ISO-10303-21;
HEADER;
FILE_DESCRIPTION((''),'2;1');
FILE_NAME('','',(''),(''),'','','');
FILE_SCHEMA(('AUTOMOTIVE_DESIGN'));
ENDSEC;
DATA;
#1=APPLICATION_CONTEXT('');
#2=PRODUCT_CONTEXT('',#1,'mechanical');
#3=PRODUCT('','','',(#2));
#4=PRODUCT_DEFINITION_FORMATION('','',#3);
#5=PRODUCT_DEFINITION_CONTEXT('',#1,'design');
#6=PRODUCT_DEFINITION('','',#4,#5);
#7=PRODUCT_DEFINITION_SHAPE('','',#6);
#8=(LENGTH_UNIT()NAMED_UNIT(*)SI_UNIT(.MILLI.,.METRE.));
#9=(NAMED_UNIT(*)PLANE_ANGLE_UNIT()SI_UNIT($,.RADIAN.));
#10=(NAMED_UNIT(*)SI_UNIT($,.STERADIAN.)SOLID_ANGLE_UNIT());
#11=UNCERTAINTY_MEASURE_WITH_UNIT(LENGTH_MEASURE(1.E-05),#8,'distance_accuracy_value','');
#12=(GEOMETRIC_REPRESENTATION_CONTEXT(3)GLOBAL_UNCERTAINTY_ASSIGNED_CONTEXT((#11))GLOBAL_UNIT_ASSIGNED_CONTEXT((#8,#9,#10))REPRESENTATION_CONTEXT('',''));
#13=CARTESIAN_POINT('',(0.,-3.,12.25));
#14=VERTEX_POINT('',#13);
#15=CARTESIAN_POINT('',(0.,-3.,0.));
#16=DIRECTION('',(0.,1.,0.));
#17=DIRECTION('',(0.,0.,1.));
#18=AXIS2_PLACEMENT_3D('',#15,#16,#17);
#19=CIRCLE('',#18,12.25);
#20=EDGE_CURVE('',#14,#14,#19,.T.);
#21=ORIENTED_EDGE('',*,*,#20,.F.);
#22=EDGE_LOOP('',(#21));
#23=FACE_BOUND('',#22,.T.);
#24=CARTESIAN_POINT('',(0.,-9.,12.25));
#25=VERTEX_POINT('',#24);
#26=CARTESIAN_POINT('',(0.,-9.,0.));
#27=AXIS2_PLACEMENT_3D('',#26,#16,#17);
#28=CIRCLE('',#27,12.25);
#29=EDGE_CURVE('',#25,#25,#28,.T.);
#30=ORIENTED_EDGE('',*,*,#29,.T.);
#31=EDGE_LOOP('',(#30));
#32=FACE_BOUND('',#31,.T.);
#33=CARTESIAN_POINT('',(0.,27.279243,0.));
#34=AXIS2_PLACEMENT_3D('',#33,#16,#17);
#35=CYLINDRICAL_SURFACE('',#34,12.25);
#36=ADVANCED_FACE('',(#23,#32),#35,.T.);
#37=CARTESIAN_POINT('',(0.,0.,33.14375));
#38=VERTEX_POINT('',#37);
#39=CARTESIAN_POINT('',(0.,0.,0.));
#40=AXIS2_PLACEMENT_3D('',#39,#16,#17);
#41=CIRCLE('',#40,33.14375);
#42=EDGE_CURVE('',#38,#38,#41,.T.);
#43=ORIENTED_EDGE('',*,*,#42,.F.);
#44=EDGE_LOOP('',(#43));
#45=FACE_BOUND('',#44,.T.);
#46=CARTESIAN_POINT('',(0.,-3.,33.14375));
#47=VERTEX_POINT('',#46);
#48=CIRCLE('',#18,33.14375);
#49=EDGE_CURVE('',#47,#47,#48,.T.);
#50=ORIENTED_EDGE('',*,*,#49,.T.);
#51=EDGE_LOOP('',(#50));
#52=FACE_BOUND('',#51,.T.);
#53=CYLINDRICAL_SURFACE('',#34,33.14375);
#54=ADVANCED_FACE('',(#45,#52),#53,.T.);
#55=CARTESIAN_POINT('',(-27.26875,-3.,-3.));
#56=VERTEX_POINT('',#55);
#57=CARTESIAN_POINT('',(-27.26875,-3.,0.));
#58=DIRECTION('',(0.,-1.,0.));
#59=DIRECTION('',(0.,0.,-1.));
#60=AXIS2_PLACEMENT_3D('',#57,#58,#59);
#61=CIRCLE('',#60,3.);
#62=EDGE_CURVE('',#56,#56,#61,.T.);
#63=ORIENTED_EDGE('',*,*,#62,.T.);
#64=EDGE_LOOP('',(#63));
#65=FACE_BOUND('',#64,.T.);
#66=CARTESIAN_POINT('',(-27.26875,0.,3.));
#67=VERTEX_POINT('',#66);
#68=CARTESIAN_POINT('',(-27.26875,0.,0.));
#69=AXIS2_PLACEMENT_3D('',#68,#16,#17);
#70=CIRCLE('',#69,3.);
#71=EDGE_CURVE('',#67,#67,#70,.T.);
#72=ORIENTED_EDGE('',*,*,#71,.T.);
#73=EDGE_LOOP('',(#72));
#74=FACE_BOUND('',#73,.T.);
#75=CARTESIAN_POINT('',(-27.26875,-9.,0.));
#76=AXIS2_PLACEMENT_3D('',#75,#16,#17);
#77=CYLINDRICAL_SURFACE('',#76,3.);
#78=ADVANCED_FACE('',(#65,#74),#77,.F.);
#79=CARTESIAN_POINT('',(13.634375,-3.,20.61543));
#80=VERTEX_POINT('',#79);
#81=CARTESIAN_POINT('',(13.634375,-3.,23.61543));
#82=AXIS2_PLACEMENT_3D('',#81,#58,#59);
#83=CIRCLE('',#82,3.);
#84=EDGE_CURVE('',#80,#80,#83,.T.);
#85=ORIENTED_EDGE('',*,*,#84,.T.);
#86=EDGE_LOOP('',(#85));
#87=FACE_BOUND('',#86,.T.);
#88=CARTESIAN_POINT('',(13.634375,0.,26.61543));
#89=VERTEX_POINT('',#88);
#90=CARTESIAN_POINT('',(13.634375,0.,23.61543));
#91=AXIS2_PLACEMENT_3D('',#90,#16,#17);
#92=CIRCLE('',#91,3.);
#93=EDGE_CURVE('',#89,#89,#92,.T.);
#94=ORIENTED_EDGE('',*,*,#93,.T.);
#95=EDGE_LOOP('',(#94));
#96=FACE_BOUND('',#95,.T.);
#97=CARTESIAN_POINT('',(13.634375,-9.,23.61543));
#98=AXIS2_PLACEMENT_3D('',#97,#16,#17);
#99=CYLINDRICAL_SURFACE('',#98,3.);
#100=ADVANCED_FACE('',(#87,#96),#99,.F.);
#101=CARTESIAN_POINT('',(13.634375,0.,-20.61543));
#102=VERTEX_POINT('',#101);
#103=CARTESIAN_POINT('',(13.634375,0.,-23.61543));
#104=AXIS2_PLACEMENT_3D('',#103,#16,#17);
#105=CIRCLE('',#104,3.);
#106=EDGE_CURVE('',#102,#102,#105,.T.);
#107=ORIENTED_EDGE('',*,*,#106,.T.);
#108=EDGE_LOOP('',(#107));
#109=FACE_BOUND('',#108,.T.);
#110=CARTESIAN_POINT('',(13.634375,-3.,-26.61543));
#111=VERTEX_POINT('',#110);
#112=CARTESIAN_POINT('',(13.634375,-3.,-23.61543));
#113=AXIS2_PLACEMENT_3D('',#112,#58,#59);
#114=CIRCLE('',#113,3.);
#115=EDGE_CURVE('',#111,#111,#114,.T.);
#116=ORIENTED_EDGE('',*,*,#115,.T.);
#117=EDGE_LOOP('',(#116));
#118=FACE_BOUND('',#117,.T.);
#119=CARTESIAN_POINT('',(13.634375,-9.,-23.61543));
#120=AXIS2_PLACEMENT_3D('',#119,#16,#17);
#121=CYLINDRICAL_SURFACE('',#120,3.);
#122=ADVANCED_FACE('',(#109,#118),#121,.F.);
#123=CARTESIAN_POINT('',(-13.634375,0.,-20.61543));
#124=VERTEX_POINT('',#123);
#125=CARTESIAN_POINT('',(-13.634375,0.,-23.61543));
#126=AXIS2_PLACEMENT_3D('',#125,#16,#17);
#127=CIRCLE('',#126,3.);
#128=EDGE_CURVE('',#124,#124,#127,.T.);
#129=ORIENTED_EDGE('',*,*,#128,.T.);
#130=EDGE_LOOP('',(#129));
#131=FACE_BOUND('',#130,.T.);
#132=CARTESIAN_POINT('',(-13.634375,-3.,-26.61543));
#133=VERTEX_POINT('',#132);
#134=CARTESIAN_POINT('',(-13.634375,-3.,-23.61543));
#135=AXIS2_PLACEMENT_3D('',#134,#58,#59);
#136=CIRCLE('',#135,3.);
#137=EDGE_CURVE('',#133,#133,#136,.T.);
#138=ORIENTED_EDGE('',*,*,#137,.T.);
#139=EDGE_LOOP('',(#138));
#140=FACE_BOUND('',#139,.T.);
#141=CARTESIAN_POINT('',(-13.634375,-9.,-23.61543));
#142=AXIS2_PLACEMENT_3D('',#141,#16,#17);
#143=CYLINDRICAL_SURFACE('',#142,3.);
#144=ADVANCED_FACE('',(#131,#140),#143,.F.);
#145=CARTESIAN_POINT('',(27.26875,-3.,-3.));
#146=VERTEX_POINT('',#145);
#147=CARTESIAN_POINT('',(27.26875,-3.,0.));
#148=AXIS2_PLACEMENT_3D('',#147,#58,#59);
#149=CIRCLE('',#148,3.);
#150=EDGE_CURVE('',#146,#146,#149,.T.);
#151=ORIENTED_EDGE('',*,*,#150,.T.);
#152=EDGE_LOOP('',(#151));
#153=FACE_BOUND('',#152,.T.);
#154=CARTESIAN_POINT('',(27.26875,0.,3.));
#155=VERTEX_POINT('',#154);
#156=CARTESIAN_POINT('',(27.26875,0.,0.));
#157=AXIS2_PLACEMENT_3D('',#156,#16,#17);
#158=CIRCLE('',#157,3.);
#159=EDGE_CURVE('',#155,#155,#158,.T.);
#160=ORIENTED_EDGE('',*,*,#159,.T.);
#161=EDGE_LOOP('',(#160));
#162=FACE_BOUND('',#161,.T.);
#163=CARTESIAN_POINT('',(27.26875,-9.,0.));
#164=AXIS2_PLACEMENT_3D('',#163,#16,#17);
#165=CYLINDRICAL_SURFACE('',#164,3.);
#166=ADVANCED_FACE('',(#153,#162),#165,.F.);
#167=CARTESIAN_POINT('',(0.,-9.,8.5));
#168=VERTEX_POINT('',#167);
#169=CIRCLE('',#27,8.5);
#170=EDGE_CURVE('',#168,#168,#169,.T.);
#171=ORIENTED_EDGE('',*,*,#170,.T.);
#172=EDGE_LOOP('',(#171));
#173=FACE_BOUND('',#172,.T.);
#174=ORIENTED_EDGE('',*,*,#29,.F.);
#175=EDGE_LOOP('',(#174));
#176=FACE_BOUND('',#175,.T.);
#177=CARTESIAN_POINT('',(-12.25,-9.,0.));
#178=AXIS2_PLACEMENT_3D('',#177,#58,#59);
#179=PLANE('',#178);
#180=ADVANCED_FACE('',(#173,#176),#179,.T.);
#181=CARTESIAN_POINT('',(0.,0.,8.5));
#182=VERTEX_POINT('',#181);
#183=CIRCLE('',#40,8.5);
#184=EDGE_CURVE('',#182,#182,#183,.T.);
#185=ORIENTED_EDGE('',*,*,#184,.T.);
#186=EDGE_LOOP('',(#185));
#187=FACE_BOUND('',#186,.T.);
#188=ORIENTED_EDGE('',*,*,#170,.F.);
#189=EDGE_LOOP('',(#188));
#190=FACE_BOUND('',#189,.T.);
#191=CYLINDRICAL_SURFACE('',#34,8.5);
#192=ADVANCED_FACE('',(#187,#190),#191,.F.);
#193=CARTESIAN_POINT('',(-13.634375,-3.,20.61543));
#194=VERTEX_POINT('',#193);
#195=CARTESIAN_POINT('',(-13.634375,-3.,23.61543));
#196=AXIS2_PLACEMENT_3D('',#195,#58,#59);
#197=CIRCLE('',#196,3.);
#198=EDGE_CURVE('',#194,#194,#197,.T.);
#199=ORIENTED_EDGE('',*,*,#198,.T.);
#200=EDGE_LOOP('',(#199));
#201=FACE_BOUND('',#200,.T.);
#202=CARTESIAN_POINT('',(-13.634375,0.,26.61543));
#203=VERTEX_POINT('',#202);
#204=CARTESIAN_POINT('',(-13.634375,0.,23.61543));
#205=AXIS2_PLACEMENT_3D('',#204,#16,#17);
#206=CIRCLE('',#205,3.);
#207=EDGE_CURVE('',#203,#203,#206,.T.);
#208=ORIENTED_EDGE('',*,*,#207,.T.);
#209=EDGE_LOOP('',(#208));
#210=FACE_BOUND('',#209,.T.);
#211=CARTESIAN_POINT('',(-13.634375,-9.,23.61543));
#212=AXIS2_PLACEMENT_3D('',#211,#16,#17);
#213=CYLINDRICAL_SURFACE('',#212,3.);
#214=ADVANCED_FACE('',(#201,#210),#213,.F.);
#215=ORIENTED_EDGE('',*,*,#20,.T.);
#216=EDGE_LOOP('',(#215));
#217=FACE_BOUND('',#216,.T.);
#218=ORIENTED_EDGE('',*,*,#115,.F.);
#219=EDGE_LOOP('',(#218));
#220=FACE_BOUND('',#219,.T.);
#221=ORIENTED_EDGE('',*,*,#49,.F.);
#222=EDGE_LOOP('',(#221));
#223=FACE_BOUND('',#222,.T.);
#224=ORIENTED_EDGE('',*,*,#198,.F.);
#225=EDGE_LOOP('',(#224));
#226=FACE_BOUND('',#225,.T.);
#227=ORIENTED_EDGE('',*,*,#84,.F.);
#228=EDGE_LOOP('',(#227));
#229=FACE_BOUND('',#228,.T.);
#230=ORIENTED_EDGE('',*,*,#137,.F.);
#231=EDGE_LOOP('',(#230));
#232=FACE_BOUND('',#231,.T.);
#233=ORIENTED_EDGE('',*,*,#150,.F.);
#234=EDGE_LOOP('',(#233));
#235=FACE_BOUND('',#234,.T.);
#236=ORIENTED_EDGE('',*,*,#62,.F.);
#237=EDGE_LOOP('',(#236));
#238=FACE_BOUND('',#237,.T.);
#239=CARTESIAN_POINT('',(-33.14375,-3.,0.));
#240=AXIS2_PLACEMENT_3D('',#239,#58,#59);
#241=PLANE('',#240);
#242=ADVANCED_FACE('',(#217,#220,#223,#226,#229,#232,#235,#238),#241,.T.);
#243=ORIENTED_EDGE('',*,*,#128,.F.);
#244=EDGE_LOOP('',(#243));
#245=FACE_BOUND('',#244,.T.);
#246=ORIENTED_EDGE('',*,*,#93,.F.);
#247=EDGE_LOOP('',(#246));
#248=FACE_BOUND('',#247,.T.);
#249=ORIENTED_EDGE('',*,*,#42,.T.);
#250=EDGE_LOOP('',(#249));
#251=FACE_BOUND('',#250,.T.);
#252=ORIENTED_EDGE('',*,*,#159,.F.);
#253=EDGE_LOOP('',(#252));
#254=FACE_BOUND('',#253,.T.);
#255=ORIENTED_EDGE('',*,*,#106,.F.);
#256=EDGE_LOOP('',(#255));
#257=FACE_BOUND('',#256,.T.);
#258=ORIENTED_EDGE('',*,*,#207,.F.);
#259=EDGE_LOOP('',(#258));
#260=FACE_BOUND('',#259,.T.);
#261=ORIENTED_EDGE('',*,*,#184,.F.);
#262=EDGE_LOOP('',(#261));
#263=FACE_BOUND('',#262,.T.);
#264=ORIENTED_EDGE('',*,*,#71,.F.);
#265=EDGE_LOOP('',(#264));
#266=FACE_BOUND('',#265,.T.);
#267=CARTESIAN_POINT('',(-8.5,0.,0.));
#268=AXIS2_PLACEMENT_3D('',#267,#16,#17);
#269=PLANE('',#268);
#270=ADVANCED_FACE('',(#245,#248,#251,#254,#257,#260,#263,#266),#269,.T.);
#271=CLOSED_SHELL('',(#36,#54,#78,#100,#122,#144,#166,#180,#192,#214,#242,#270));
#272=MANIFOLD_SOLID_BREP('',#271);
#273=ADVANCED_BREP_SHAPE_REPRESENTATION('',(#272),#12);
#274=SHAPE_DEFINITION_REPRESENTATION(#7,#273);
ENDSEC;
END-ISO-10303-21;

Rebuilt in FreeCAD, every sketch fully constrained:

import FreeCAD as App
import Part
import Sketcher

V = App.Vector


def add_polygon(sketch, points):
    """Adds a closed chain of lines whose ends are joined by coincident constraints."""
    first, n = sketch.GeometryCount, len(points)
    for a, b in zip(points, points[1:] + points[:1]):
        sketch.addGeometry(Part.LineSegment(App.Vector(*a, 0), App.Vector(*b, 0)), False)
    for i in range(n):
        sketch.addConstraint(Sketcher.Constraint("Coincident", first + i, 2, first + (i + 1) % n, 1))

doc = App.newDocument("Part")
body = doc.addObject("PartDesign::Body", "Body")

# Sketch on XY plane
sketch1 = body.newObject("Sketcher::SketchObject", "Sketch")
sketch1.AttachmentSupport = (doc.getObject("XY_Plane"), [""])
sketch1.MapMode = "FlatFace"
add_polygon(sketch1, [(-8.5, 0), (-33.14375, 0), (-33.14375, -3), (-12.25, -3), (-12.25, -9), (-8.5, -9)])  # lines 0-5
sketch1.addConstraint(Sketcher.Constraint("Horizontal", 0))
sketch1.addConstraint(Sketcher.Constraint("Vertical", 1))
sketch1.addConstraint(Sketcher.Constraint("Horizontal", 2))
sketch1.addConstraint(Sketcher.Constraint("Vertical", 3))
sketch1.addConstraint(Sketcher.Constraint("Horizontal", 4))
sketch1.addConstraint(Sketcher.Constraint("Vertical", 5))
sketch1.addConstraint(Sketcher.Constraint("PointOnObject", 0, 2, -1))
sketch1.addConstraint(Sketcher.Constraint("DistanceY", 1, 2, 1, 1, 3.0))
sketch1.addConstraint(Sketcher.Constraint("DistanceY", 3, 2, 3, 1, 6.0))
sketch1.addConstraint(Sketcher.Constraint("DistanceX", 4, 1, 4, 2, 3.75))
sketch1.addConstraint(Sketcher.Constraint("DistanceX", 4, 2, -1, 1, 8.5))
sketch1.addConstraint(Sketcher.Constraint("DistanceX", 0, 2, 0, 1, 24.64375))
revolution = body.newObject("PartDesign::Revolution", "Revolution")
revolution.Profile = sketch1
revolution.ReferenceAxis = (sketch1, ["V_Axis"])
revolution.Angle = 360

# Sketch on XZ plane
sketch2 = body.newObject("Sketcher::SketchObject", "Sketch001")
sketch2.AttachmentSupport = (doc.getObject("XZ_Plane"), [""])
sketch2.MapMode = "FlatFace"
sketch2.addGeometry(Part.Circle(V(-27.26875, 0, 0), V(0, 0, 1), 3), False)
sketch2.addGeometry(Part.Circle(V(-13.634375, -23.61543, 0), V(0, 0, 1), 3), False)
sketch2.addGeometry(Part.Circle(V(13.634375, -23.61543, 0), V(0, 0, 1), 3), False)
sketch2.addGeometry(Part.Circle(V(27.26875, 0, 0), V(0, 0, 1), 3), False)
sketch2.addGeometry(Part.Circle(V(13.634375, 23.61543, 0), V(0, 0, 1), 3), False)
sketch2.addGeometry(Part.Circle(V(-13.634375, 23.61543, 0), V(0, 0, 1), 3), False)
sketch2.addConstraint(Sketcher.Constraint("Equal", 0, 1))
sketch2.addConstraint(Sketcher.Constraint("Equal", 1, 2))
sketch2.addConstraint(Sketcher.Constraint("Equal", 2, 3))
sketch2.addConstraint(Sketcher.Constraint("Equal", 3, 4))
sketch2.addConstraint(Sketcher.Constraint("Equal", 4, 5))
sketch2.addConstraint(Sketcher.Constraint("Symmetric", 0, 3, 3, 3, -1, 1))
sketch2.addConstraint(Sketcher.Constraint("Symmetric", 1, 3, 4, 3, -1, 1))
sketch2.addConstraint(Sketcher.Constraint("Symmetric", 2, 3, 5, 3, -1, 1))
sketch2.addConstraint(Sketcher.Constraint("Symmetric", 1, 3, 2, 3, -2))
sketch2.addConstraint(Sketcher.Constraint("PointOnObject", 0, 3, -1))
sketch2.addConstraint(Sketcher.Constraint("Diameter", 0, 6.0))
sketch2.addConstraint(Sketcher.Constraint("DistanceX", 0, 3, 3, 3, 54.5375))
sketch2.addConstraint(Sketcher.Constraint("DistanceY", 1, 3, -1, 1, 23.61543))
sketch2.addConstraint(Sketcher.Constraint("DistanceX", 1, 3, 2, 3, 27.26875))
pocket1 = body.newObject("PartDesign::Pocket", "Pocket")
pocket1.Profile = sketch2
pocket1.Type = "ThroughAll"
pocket1.Reversed = True

doc.recompute()
